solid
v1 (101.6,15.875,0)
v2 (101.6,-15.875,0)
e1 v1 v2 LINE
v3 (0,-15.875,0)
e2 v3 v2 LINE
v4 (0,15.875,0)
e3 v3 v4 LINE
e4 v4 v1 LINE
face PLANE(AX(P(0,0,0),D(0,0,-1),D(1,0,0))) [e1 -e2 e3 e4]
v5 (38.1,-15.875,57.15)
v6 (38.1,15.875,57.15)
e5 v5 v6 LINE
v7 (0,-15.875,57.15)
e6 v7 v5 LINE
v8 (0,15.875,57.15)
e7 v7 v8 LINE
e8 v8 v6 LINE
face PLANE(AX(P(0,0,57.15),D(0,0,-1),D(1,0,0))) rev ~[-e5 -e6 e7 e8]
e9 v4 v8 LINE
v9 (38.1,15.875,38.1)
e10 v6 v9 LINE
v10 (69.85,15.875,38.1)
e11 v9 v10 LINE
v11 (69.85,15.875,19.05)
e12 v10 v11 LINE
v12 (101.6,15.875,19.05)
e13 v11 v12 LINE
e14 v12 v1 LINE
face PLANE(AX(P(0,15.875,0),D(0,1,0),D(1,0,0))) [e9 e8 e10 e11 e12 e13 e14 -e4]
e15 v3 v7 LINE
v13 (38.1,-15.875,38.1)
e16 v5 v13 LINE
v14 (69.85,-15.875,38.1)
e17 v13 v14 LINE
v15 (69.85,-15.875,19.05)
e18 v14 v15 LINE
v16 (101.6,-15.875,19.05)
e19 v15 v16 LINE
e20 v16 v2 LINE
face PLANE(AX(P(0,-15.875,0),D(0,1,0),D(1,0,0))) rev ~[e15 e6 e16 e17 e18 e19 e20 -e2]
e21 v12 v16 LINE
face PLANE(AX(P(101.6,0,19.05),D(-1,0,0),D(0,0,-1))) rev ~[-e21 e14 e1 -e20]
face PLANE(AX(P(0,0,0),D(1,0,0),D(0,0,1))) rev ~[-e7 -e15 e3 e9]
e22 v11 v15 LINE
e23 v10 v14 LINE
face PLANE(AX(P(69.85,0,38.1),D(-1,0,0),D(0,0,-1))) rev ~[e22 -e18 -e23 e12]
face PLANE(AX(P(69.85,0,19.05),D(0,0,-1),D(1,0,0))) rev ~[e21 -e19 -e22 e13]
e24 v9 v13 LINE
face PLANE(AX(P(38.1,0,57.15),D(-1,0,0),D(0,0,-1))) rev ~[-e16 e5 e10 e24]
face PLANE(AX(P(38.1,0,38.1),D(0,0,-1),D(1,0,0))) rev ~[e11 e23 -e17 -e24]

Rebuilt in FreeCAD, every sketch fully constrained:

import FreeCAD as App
import Part
import Sketcher

V = App.Vector
Q = App.Units.Quantity

doc = App.newDocument("Part")
body = doc.addObject("PartDesign::Body", "Body")

# Sketch on XZ plane
sketch1 = doc.addObject("Sketcher::SketchObject", "Sketch")
body.addObject(sketch1)
sketch1.AttachmentSupport = (doc.XZ_Plane, [""])
sketch1.MapMode = "FlatFace"
sketch1.addGeometry([
    Part.LineSegment(V(102, 0, 0), V(0, 0, 0)),  # 0
    Part.LineSegment(V(0, 0, 0), V(0, 57, 0)),  # 1
    Part.LineSegment(V(0, 57, 0), V(38, 57, 0)),  # 2
    Part.LineSegment(V(38, 57, 0), V(38, 38, 0)),  # 3
    Part.LineSegment(V(38, 38, 0), V(70, 38, 0)),  # 4
    Part.LineSegment(V(70, 38, 0), V(70, 19, 0)),  # 5
    Part.LineSegment(V(70, 19, 0), V(102, 19, 0)),  # 6
    Part.LineSegment(V(102, 19, 0), V(102, 0, 0)),  # 7
], False)
sketch1.addConstraint([
    Sketcher.Constraint("Coincident", 0, 2, 1, 1),
    Sketcher.Constraint("Coincident", 1, 2, 2, 1),
    Sketcher.Constraint("Coincident", 2, 2, 3, 1),
    Sketcher.Constraint("Coincident", 3, 2, 4, 1),
    Sketcher.Constraint("Coincident", 4, 2, 5, 1),
    Sketcher.Constraint("Coincident", 5, 2, 6, 1),
    Sketcher.Constraint("Coincident", 6, 2, 7, 1),
    Sketcher.Constraint("Coincident", 7, 2, 0, 1),
    Sketcher.Constraint("Horizontal", 0),
    Sketcher.Constraint("Vertical", 1),
    Sketcher.Constraint("Horizontal", 2),
    Sketcher.Constraint("Vertical", 3),
    Sketcher.Constraint("Horizontal", 4),
    Sketcher.Constraint("Vertical", 5),
    Sketcher.Constraint("Horizontal", 6),
    Sketcher.Constraint("Vertical", 7),
    Sketcher.Constraint("Coincident", 0, 2, -1, 1),
    Sketcher.Constraint("Equal", 4, 6),
    Sketcher.Constraint("Equal", 3, 5),
    Sketcher.Constraint("Equal", 5, 7),
    Sketcher.Constraint("DistanceX", 0, 2, 0, 1, Q("4 in")),
    Sketcher.Constraint("DistanceX", 2, 1, 2, 2, Q("1.5 in")),
    Sketcher.Constraint("DistanceY", 1, 1, 1, 2, Q("2.25 in")),
])
pad1 = doc.addObject("PartDesign::Pad", "Pad")
body.addObject(pad1)
pad1.Profile = sketch1
pad1.Length = Q("1.25 in")
pad1.Midplane = True

doc.recompute()
